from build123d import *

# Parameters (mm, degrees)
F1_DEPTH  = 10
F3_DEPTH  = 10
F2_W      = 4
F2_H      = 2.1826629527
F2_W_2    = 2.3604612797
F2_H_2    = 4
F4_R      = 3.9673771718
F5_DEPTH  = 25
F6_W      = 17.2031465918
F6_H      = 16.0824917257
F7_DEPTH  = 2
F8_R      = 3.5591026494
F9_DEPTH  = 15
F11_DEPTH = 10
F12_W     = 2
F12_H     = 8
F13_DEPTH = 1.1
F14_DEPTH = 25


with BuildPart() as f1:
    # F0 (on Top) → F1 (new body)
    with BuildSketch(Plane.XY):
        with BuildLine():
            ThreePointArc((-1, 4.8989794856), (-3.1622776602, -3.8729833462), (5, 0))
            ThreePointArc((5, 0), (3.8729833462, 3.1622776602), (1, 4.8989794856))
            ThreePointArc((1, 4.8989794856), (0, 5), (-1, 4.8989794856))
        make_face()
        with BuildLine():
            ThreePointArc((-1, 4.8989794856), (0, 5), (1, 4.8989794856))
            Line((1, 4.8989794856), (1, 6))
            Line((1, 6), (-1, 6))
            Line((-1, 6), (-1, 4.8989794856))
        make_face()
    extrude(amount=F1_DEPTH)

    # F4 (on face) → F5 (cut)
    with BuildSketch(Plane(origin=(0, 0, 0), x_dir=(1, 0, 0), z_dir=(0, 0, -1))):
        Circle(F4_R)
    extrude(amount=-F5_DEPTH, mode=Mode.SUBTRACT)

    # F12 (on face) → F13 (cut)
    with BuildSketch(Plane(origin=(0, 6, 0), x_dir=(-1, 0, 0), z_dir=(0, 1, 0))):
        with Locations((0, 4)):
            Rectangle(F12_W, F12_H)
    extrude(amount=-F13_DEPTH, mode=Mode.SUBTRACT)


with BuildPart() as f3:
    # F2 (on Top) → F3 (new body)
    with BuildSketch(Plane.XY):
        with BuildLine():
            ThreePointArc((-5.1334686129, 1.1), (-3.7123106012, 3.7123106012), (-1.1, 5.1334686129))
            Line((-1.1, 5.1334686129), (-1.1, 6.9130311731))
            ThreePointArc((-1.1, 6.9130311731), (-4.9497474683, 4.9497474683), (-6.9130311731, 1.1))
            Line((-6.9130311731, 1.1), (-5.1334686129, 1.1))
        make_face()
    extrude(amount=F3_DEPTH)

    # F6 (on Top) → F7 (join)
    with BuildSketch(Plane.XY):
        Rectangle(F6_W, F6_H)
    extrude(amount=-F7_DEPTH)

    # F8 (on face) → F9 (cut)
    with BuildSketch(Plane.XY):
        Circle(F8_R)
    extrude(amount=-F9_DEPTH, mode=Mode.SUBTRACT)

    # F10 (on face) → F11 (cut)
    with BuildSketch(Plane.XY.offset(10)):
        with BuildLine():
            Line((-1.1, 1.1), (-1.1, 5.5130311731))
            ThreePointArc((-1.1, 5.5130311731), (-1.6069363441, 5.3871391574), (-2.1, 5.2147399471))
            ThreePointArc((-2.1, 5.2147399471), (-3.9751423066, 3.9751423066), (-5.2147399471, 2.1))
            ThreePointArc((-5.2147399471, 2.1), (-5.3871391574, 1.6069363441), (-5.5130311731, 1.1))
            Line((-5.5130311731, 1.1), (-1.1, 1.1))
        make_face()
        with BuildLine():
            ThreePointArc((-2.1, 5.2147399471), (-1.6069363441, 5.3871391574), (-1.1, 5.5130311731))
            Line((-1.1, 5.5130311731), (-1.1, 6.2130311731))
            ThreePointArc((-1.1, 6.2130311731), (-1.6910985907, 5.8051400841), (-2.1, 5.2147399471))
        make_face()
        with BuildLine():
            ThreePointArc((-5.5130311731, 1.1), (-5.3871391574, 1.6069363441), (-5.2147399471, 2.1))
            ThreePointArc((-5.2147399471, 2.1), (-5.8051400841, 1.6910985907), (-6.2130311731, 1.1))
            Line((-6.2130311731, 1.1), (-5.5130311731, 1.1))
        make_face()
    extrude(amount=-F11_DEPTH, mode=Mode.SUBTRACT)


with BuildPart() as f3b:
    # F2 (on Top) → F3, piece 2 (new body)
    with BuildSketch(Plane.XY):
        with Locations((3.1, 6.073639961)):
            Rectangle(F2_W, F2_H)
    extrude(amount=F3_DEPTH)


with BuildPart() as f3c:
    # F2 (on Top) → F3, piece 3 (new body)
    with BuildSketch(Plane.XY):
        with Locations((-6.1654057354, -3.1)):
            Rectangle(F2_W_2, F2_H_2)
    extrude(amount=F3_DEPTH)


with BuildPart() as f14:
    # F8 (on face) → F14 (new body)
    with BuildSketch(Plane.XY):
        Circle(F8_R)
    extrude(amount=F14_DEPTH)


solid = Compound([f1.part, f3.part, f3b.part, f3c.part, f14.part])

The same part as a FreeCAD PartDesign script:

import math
import FreeCAD as App
import Part
import Sketcher

doc = App.newDocument("Part")
params = doc.addObject("Spreadsheet::Sheet", "Params")
for row, (alias, value) in enumerate([
    ("sketch1_radius", "5 mm"),
    ("sketch1_width", "2 mm"),
    ("pad1_length", "10 mm"),
    ("pocket1_length", "25 mm"),
    ("sketch3_width", "2 mm"),
    ("sketch3_height", "8 mm"),
    ("pocket2_length", "1.1 mm"),
    ("sketch4_radius", "7 mm"),
    ("sketch4_radius2", "5.25 mm"),
    ("pad2_length", "10 mm"),
    ("pad3_length", "2 mm"),
    ("pocket3_length", "15 mm"),
    ("sketch7_radius", "2 mm"),
    ("pocket4_length", "10 mm"),
    ("sketch8_width", "4 mm"),
    ("pad4_length", "10 mm"),
    ("sketch9_height", "4 mm"),
    ("pad5_length", "10 mm"),
    ("pad6_length", "25 mm"),
], start=1):
    params.set(f"A{row}", alias)
    params.set(f"B{row}", "=" + value)
    params.setAlias(f"B{row}", alias)

body = doc.addObject("PartDesign::Body", "Body")

# Sketch on XY plane
sketch1 = body.newObject("Sketcher::SketchObject", "Sketch")
sketch1.AttachmentSupport = (doc.getObject("XY_Plane"), [""])
sketch1.MapMode = "FlatFace"
sketch1.addGeometry([
    Part.ArcOfCircle(Part.Circle(App.Vector(0, 0, 0), App.Vector(0, 0, 1), 5), math.radians(102), math.radians(438)),
    Part.LineSegment(App.Vector(1, 4.9, 0), App.Vector(1, 6, 0)),
    Part.LineSegment(App.Vector(1, 6, 0), App.Vector(-1, 6, 0)),
    Part.LineSegment(App.Vector(-1, 6, 0), App.Vector(-1, 4.9, 0)),
], False)
sketch1.addConstraint([
    Sketcher.Constraint("Coincident", 0, 2, 1, 1),
    Sketcher.Constraint("Coincident", 1, 2, 2, 1),
    Sketcher.Constraint("Coincident", 2, 2, 3, 1),
    Sketcher.Constraint("Coincident", 3, 2, 0, 1),
    Sketcher.Constraint("Vertical", 1),
    Sketcher.Constraint("Horizontal", 2),
    Sketcher.Constraint("Vertical", 3),
    Sketcher.Constraint("Coincident", 0, 3, -1, 1),
    Sketcher.Constraint("Horizontal", 0, 2, 3, 2),
    Sketcher.Constraint("Radius", 0, 5.0),
    Sketcher.Constraint("DistanceX", 2, 2, 2, 1, 2.0),
    Sketcher.Constraint("DistanceY", -1, 1, 1, 2, 6.0),
])
sketch1.setExpression("Constraints[9]", "Params.sketch1_radius")
sketch1.setExpression("Constraints[10]", "Params.sketch1_width")
pad1 = body.newObject("PartDesign::Pad", "Pad")
pad1.Profile = sketch1
pad1.setExpression("Length", "Params.pad1_length")

# Sketch on XY plane
sketch2 = body.newObject("Sketcher::SketchObject", "Sketch001")
sketch2.AttachmentSupport = (doc.getObject("XY_Plane"), [""])
sketch2.MapMode = "FlatFace"
sketch2.addGeometry(Part.Circle(App.Vector(0, 0, 0), App.Vector(0, 0, 1), 4), False)
sketch2.addConstraint([
    Sketcher.Constraint("Coincident", 0, 3, -1, 1),
    Sketcher.Constraint("Diameter", 0, 7.934754),
])
pocket1 = body.newObject("PartDesign::Pocket", "Pocket")
pocket1.Profile = sketch2
pocket1.setExpression("Length", "Params.pocket1_length")
pocket1.Reversed = True

# Sketch on XZ plane
sketch3 = body.newObject("Sketcher::SketchObject", "Sketch002")
sketch3.AttachmentSupport = (doc.getObject("XZ_Plane"), [""])
sketch3.MapMode = "FlatFace"
sketch3.AttachmentOffset = App.Placement(App.Vector(0, 0, -6), App.Rotation())
sketch3.addGeometry([
    Part.LineSegment(App.Vector(1, 8, 0), App.Vector(1, 0, 0)),
    Part.LineSegment(App.Vector(1, 0, 0), App.Vector(-1, 0, 0)),
    Part.LineSegment(App.Vector(-1, 0, 0), App.Vector(-1, 8, 0)),
    Part.LineSegment(App.Vector(-1, 8, 0), App.Vector(1, 8, 0)),
], False)
sketch3.addConstraint([
    Sketcher.Constraint("Coincident", 0, 2, 1, 1),
    Sketcher.Constraint("Coincident", 1, 2, 2, 1),
    Sketcher.Constraint("Coincident", 2, 2, 3, 1),
    Sketcher.Constraint("Coincident", 3, 2, 0, 1),
    Sketcher.Constraint("Vertical", 0),
    Sketcher.Constraint("Horizontal", 1),
    Sketcher.Constraint("Vertical", 2),
    Sketcher.Constraint("Horizontal", 3),
    Sketcher.Constraint("Symmetric", 0, 2, 1, 2, -1, 1),
    Sketcher.Constraint("DistanceX", 1, 2, 1, 1, 2.0),
    Sketcher.Constraint("DistanceY", 0, 2, 0, 1, 8.0),
])
sketch3.setExpression("Constraints[9]", "Params.sketch3_width")
sketch3.setExpression("Constraints[10]", "Params.sketch3_height")
pocket2 = body.newObject("PartDesign::Pocket", "Pocket001")
pocket2.Profile = sketch3
pocket2.setExpression("Length", "Params.pocket2_length")
pocket2.Reversed = True
body2 = doc.addObject("PartDesign::Body", "Body001")

# Sketch on XY plane
sketch4 = body2.newObject("Sketcher::SketchObject", "Sketch003")
sketch4.AttachmentSupport = (doc.getObject("XY_Plane001"), [""])
sketch4.MapMode = "FlatFace"
sketch4.addGeometry([
    Part.ArcOfCircle(Part.Circle(App.Vector(0, 0, 0), App.Vector(0, 0, 1), 5.2), math.radians(102), math.radians(168)),
    Part.LineSegment(App.Vector(-1.1, 5.1, 0), App.Vector(-1.1, 6.9, 0)),
    Part.ArcOfCircle(Part.Circle(App.Vector(0, 0, 0), App.Vector(0, 0, 1), 7), math.radians(99), math.radians(171)),
    Part.LineSegment(App.Vector(-6.9, 1.1, 0), App.Vector(-5.1, 1.1, 0)),
], False)
sketch4.addConstraint([
    Sketcher.Constraint("Coincident", 0, 1, 1, 1),
    Sketcher.Constraint("Coincident", 1, 2, 2, 1),
    Sketcher.Constraint("Coincident", 2, 2, 3, 1),
    Sketcher.Constraint("Coincident", 3, 2, 0, 2),
    Sketcher.Constraint("Vertical", 1),
    Sketcher.Constraint("Horizontal", 3),
    Sketcher.Constraint("Coincident", 0, 3, -1, 1),
    Sketcher.Constraint("Coincident", 2, 3, -1, 1),
    Sketcher.Constraint("Equal", 3, 1),
    Sketcher.Constraint("Radius", 2, 7.0),
    Sketcher.Constraint("Radius", 0, 5.25),
    Sketcher.Constraint("DistanceX", 0, 1, -1, 1, 1.1),
])
sketch4.setExpression("Constraints[9]", "Params.sketch4_radius")
sketch4.setExpression("Constraints[10]", "Params.sketch4_radius2")
pad2 = body2.newObject("PartDesign::Pad", "Pad001")
pad2.Profile = sketch4
pad2.setExpression("Length", "Params.pad2_length")

# Sketch on XY plane
sketch5 = body2.newObject("Sketcher::SketchObject", "Sketch004")
sketch5.AttachmentSupport = (doc.getObject("XY_Plane001"), [""])
sketch5.MapMode = "FlatFace"
sketch5.addGeometry([
    Part.LineSegment(App.Vector(-9, 8, 0), App.Vector(-9, -8, 0)),
    Part.LineSegment(App.Vector(-9, -8, 0), App.Vector(9, -8, 0)),
    Part.LineSegment(App.Vector(9, -8, 0), App.Vector(9, 8, 0)),
    Part.LineSegment(App.Vector(9, 8, 0), App.Vector(-9, 8, 0)),
], False)
sketch5.addConstraint([
    Sketcher.Constraint("Coincident", 0, 2, 1, 1),
    Sketcher.Constraint("Coincident", 1, 2, 2, 1),
    Sketcher.Constraint("Coincident", 2, 2, 3, 1),
    Sketcher.Constraint("Coincident", 3, 2, 0, 1),
    Sketcher.Constraint("Vertical", 0),
    Sketcher.Constraint("Horizontal", 1),
    Sketcher.Constraint("Vertical", 2),
    Sketcher.Constraint("Horizontal", 3),
    Sketcher.Constraint("Symmetric", 0, 2, 2, 2, -1, 1),
    Sketcher.Constraint("DistanceY", 0, 2, 0, 1, 16.082492),
    Sketcher.Constraint("DistanceX", 1, 1, 1, 2, 17.203147),
])
pad3 = body2.newObject("PartDesign::Pad", "Pad002")
pad3.Profile = sketch5
pad3.setExpression("Length", "Params.pad3_length")
pad3.Reversed = True

# Sketch on XY plane
sketch6 = body2.newObject("Sketcher::SketchObject", "Sketch005")
sketch6.AttachmentSupport = (doc.getObject("XY_Plane001"), [""])
sketch6.MapMode = "FlatFace"
sketch6.addGeometry(Part.Circle(App.Vector(0, 0, 0), App.Vector(0, 0, 1), 3.6), False)
sketch6.addConstraint([
    Sketcher.Constraint("Coincident", 0, 3, -1, 1),
    Sketcher.Constraint("Diameter", 0, 7.118205),
])
pocket3 = body2.newObject("PartDesign::Pocket", "Pocket002")
pocket3.Profile = sketch6
pocket3.setExpression("Length", "Params.pocket3_length")

# Sketch on XY plane
sketch7 = body2.newObject("Sketcher::SketchObject", "Sketch006")
sketch7.AttachmentSupport = (doc.getObject("XY_Plane001"), [""])
sketch7.MapMode = "FlatFace"
sketch7.AttachmentOffset = App.Placement(App.Vector(0, 0, 10), App.Rotation())
sketch7.addGeometry([
    Part.LineSegment(App.Vector(-1.1, 1.1, 0), App.Vector(-1.1, 6.2, 0)),  # 0
    Part.ArcOfCircle(Part.Circle(App.Vector(-0.3, 4.4, 0), App.Vector(0, 0, 1), 2), math.radians(114), math.radians(156)),  # 1
    Part.ArcOfCircle(Part.Circle(App.Vector(0, 0, 0), App.Vector(0, 0, 1), 5.6), math.radians(112), math.radians(158)),  # 2
    Part.ArcOfCircle(Part.Circle(App.Vector(-4.4, 0.3, 0), App.Vector(0, 0, 1), 2), math.radians(114), math.radians(156)),  # 3
    Part.LineSegment(App.Vector(-6.2, 1.1, 0), App.Vector(-1.1, 1.1, 0)),  # 4
], False)
sketch7.addConstraint([
    Sketcher.Constraint("Coincident", 0, 2, 1, 1),
    Sketcher.Constraint("Coincident", 1, 2, 2, 1),
    Sketcher.Constraint("Coincident", 2, 2, 3, 1),
    Sketcher.Constraint("Coincident", 3, 2, 4, 1),
    Sketcher.Constraint("Coincident", 4, 2, 0, 1),
    Sketcher.Constraint("Vertical", 0),
    Sketcher.Constraint("Horizontal", 4),
    Sketcher.Constraint("Coincident", 2, 3, -1, 1),
    Sketcher.Constraint("Equal", 1, 3),
    Sketcher.Constraint("Equal", 4, 0),
    Sketcher.Constraint("Radius", 1, 2.0),
    Sketcher.Constraint("DistanceX", 1, 2, 0, 2, 1.0),
    Sketcher.Constraint("DistanceY", 3, 2, 2, 2, 1.0),
    Sketcher.Constraint("DistanceX", 0, 2, -1, 1, 1.1),
    Sketcher.Constraint("DistanceY", -1, 1, 2, 2, 2.1),
    Sketcher.Constraint("Radius", 2, 5.6217),
    Sketcher.Constraint("DistanceX", 4, 1, 4, 2, 5.113031),
])
sketch7.setExpression("Constraints[10]", "Params.sketch7_radius")
pocket4 = body2.newObject("PartDesign::Pocket", "Pocket003")
pocket4.Profile = sketch7
pocket4.setExpression("Length", "Params.pocket4_length")
body3 = doc.addObject("PartDesign::Body", "Body002")

# Sketch on XY plane
sketch8 = body3.newObject("Sketcher::SketchObject", "Sketch007")
sketch8.AttachmentSupport = (doc.getObject("XY_Plane002"), [""])
sketch8.MapMode = "FlatFace"
sketch8.addGeometry([
    Part.LineSegment(App.Vector(1.1, 7.2, 0), App.Vector(1.1, 5, 0)),
    Part.LineSegment(App.Vector(1.1, 5, 0), App.Vector(5.1, 5, 0)),
    Part.LineSegment(App.Vector(5.1, 5, 0), App.Vector(5.1, 7.2, 0)),
    Part.LineSegment(App.Vector(5.1, 7.2, 0), App.Vector(1.1, 7.2, 0)),
], False)
sketch8.addConstraint([
    Sketcher.Constraint("Coincident", 0, 2, 1, 1),
    Sketcher.Constraint("Coincident", 1, 2, 2, 1),
    Sketcher.Constraint("Coincident", 2, 2, 3, 1),
    Sketcher.Constraint("Coincident", 3, 2, 0, 1),
    Sketcher.Constraint("Vertical", 0),
    Sketcher.Constraint("Horizontal", 1),
    Sketcher.Constraint("Vertical", 2),
    Sketcher.Constraint("Horizontal", 3),
    Sketcher.Constraint("DistanceX", 1, 1, 1, 2, 4.0),
    Sketcher.Constraint("DistanceX", -1, 1, 0, 2, 1.1),
    Sketcher.Constraint("DistanceY", 0, 2, 0, 1, 2.182663),
    Sketcher.Constraint("DistanceY", -1, 1, 0, 2, 4.982308),
])
sketch8.setExpression("Constraints[8]", "Params.sketch8_width")
pad4 = body3.newObject("PartDesign::Pad", "Pad003")
pad4.Profile = sketch8
pad4.setExpression("Length", "Params.pad4_length")
body4 = doc.addObject("PartDesign::Body", "Body003")

# Sketch on XY plane
sketch9 = body4.newObject("Sketcher::SketchObject", "Sketch008")
sketch9.AttachmentSupport = (doc.getObject("XY_Plane003"), [""])
sketch9.MapMode = "FlatFace"
sketch9.addGeometry([
    Part.LineSegment(App.Vector(-7.3, -1.1, 0), App.Vector(-7.3, -5.1, 0)),
    Part.LineSegment(App.Vector(-7.3, -5.1, 0), App.Vector(-5, -5.1, 0)),
    Part.LineSegment(App.Vector(-5, -5.1, 0), App.Vector(-5, -1.1, 0)),
    Part.LineSegment(App.Vector(-5, -1.1, 0), App.Vector(-7.3, -1.1, 0)),
], False)
sketch9.addConstraint([
    Sketcher.Constraint("Coincident", 0, 2, 1, 1),
    Sketcher.Constraint("Coincident", 1, 2, 2, 1),
    Sketcher.Constraint("Coincident", 2, 2, 3, 1),
    Sketcher.Constraint("Coincident", 3, 2, 0, 1),
    Sketcher.Constraint("Vertical", 0),
    Sketcher.Constraint("Horizontal", 1),
    Sketcher.Constraint("Vertical", 2),
    Sketcher.Constraint("Horizontal", 3),
    Sketcher.Constraint("DistanceY", 0, 2, 0, 1, 4.0),
    Sketcher.Constraint("DistanceY", 0, 2, -1, 1, 5.1),
    Sketcher.Constraint("DistanceX", 1, 1, 1, 2, 2.360461),
    Sketcher.Constraint("DistanceX", 0, 2, -1, 1, 7.345636),
])
sketch9.setExpression("Constraints[8]", "Params.sketch9_height")
pad5 = body4.newObject("PartDesign::Pad", "Pad004")
pad5.Profile = sketch9
pad5.setExpression("Length", "Params.pad5_length")
body5 = doc.addObject("PartDesign::Body", "Body004")

# Sketch on XY plane
sketch10 = body5.newObject("Sketcher::SketchObject", "Sketch009")
sketch10.AttachmentSupport = (doc.getObject("XY_Plane004"), [""])
sketch10.MapMode = "FlatFace"
sketch10.addGeometry(Part.Circle(App.Vector(0, 0, 0), App.Vector(0, 0, 1), 3.6), False)
sketch10.addConstraint([
    Sketcher.Constraint("Coincident", 0, 3, -1, 1),
    Sketcher.Constraint("Diameter", 0, 7.118205),
])
pad6 = body5.newObject("PartDesign::Pad", "Pad005")
pad6.Profile = sketch10
pad6.setExpression("Length", "Params.pad6_length")

doc.recompute()
